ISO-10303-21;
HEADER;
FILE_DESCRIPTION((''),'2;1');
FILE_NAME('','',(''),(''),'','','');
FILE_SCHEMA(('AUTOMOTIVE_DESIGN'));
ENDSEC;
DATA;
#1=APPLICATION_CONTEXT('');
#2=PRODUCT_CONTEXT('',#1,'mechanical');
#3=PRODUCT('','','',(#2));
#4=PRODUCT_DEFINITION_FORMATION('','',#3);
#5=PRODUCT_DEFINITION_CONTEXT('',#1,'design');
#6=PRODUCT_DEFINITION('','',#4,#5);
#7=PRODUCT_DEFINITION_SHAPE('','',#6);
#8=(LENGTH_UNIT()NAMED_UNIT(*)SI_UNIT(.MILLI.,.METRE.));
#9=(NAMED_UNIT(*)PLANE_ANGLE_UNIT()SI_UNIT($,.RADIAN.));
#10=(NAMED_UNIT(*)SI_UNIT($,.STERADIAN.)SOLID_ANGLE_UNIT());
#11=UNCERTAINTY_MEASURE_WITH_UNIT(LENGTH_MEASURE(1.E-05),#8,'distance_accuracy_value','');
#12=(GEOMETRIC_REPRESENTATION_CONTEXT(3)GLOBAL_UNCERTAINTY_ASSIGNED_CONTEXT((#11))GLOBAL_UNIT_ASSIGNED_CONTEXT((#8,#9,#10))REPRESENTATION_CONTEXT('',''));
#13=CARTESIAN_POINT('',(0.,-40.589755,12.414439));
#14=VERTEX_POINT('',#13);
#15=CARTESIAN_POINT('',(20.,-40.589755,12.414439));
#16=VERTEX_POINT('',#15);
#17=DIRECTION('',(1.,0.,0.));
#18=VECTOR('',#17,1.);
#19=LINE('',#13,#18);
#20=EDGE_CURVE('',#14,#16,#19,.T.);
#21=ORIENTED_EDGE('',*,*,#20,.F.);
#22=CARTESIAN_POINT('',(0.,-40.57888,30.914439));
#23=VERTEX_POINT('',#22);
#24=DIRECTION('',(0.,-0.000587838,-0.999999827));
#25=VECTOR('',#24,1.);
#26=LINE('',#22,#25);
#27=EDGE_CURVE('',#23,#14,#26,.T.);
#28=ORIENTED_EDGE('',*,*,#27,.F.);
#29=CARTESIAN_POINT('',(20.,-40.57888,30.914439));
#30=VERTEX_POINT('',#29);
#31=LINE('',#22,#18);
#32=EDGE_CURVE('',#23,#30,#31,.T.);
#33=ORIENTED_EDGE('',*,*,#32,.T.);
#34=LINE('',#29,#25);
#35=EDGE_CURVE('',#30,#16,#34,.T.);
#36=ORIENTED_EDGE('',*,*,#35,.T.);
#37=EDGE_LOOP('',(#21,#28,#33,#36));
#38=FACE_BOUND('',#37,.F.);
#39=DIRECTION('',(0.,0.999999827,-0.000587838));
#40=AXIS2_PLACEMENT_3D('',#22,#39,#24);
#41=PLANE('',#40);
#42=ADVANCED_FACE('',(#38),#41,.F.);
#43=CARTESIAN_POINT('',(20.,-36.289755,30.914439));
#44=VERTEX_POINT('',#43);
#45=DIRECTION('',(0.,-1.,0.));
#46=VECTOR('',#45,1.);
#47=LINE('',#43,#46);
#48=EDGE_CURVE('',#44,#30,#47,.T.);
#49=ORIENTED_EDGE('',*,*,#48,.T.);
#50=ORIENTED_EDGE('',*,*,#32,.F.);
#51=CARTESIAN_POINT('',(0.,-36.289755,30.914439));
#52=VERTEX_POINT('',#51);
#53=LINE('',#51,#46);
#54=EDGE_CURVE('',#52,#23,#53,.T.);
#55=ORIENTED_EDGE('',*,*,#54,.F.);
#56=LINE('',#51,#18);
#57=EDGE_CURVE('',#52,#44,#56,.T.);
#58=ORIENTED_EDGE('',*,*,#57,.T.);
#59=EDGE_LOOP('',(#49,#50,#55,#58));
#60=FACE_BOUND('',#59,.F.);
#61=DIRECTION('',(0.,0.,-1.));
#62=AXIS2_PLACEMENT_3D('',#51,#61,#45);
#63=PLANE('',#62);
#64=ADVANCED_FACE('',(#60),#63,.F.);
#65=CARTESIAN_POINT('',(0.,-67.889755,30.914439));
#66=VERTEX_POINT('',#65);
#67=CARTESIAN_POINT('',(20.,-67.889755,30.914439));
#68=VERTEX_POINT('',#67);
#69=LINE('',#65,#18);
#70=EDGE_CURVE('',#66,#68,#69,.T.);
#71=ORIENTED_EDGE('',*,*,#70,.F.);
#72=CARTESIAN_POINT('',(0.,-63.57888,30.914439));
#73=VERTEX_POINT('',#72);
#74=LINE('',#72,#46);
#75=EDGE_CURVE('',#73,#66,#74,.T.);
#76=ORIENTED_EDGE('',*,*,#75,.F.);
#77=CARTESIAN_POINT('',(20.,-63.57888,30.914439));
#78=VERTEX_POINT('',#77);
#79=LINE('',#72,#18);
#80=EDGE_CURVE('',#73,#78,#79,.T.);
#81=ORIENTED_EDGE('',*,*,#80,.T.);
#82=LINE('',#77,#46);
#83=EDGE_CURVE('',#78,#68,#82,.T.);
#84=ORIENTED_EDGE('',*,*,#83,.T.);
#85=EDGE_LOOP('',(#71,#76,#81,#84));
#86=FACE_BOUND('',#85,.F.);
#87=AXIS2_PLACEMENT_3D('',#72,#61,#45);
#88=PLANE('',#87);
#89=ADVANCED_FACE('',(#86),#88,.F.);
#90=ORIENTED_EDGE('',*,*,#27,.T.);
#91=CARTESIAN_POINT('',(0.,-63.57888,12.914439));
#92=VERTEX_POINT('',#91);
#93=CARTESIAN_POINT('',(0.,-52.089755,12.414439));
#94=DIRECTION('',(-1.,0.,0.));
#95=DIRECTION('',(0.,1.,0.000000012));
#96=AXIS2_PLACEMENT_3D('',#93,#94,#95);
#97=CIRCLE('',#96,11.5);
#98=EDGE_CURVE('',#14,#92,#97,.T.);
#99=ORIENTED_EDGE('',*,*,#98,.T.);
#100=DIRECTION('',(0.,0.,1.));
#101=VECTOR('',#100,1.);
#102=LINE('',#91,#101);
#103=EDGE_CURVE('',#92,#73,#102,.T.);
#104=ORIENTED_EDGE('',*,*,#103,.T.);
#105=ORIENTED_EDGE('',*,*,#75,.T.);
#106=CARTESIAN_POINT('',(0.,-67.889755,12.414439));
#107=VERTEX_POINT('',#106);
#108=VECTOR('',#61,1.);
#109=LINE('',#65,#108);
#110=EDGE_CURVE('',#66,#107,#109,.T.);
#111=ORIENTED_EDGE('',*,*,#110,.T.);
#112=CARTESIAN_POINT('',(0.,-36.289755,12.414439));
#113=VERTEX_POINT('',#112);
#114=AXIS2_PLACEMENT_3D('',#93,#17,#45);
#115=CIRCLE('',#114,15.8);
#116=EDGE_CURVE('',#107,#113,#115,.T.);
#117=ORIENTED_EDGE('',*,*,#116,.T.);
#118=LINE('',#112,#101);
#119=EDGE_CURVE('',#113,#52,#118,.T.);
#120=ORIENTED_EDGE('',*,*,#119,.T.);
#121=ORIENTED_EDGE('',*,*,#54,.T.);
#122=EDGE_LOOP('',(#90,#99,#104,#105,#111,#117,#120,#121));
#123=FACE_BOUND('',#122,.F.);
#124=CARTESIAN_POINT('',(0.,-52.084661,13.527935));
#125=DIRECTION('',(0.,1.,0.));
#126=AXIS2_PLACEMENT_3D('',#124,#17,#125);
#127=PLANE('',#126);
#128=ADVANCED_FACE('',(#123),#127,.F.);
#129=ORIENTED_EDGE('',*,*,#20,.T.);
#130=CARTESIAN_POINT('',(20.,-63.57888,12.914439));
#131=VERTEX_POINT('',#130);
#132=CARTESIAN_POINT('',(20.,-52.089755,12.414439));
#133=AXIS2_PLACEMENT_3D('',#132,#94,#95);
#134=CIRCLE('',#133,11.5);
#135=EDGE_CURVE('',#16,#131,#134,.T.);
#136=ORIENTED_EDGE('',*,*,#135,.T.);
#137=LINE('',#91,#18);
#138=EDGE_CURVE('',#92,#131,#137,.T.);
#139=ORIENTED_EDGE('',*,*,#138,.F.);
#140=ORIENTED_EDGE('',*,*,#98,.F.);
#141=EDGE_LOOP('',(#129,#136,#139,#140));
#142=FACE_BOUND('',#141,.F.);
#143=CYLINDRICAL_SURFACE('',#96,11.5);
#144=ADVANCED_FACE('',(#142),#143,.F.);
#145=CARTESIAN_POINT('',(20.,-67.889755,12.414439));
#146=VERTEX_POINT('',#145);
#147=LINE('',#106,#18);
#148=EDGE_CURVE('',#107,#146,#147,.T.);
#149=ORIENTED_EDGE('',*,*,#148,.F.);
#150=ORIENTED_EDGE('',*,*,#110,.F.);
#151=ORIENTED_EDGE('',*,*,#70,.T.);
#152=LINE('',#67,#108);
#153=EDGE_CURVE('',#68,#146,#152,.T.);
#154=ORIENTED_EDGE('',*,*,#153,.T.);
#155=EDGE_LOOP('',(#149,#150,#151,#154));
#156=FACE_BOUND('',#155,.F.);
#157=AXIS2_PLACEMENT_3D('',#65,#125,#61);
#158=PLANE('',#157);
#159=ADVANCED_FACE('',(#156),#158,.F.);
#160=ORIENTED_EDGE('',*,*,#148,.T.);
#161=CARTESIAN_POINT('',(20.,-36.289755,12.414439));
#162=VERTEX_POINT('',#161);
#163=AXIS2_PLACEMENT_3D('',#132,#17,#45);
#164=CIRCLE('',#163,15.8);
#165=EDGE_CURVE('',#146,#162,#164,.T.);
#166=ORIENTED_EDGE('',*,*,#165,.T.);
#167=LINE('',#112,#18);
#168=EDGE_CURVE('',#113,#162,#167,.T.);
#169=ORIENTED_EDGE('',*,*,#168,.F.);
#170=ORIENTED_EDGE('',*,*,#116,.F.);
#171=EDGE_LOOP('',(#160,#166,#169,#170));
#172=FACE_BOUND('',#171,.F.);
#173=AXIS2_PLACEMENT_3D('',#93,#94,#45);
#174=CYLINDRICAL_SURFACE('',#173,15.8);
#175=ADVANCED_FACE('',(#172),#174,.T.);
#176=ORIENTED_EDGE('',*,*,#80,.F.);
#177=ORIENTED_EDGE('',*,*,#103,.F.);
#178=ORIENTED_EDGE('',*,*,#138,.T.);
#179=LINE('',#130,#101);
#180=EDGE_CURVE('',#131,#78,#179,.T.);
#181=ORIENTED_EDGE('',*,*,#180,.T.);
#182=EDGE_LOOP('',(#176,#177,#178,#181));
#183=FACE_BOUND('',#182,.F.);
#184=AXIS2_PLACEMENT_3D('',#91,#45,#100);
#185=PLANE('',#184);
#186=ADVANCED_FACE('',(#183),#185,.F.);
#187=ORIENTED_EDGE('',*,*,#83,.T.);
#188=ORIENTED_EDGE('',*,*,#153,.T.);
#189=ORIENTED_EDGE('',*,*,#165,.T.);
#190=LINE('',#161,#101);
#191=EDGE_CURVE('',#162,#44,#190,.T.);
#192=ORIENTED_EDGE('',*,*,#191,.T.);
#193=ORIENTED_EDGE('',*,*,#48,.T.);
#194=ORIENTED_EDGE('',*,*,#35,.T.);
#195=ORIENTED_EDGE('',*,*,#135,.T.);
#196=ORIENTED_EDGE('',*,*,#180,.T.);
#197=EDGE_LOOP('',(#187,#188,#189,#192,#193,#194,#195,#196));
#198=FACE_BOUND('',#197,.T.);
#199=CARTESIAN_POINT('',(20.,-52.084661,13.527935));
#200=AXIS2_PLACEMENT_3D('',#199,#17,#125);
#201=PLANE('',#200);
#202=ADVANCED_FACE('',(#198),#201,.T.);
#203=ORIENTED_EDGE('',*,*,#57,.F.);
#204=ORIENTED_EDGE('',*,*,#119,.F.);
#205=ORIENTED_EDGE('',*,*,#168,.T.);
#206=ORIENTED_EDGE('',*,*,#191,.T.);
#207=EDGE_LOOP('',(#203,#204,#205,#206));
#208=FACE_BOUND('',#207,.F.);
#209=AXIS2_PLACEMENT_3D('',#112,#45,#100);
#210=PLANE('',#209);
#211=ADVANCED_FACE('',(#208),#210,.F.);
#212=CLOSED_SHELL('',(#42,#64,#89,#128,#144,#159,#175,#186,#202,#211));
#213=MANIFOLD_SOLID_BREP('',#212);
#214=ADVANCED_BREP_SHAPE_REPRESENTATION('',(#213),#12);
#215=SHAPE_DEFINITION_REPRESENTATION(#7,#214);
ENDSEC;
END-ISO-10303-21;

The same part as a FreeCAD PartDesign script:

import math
import FreeCAD as App
import Part
import Sketcher

V = App.Vector
Q = App.Units.Quantity

doc = App.newDocument("Part")
body = doc.addObject("PartDesign::Body", "Body")

sketch1 = body.newObject("Sketcher::SketchObject", "Sketch")
sketch1.AttachmentSupport = (doc.getObject("YZ_Plane"), [""])
sketch1.MapMode = "FlatFace"
sketch1.addGeometry([
    Part.LineSegment(V(-67.9, 30.9, 0), V(-67.9, 12.4, 0)),
    Part.ArcOfCircle(Part.Circle(V(-52.1, 12.4, 0), V(0, 0, 1), 15.8), math.radians(180), math.radians(360)),
    Part.LineSegment(V(-36.3, 12.4, 0), V(-36.3, 30.9, 0)),
    Part.LineSegment(V(-36.3, 30.9, 0), V(-40.6, 30.9, 0)),
    Part.LineSegment(V(-40.6, 30.9, 0), V(-40.6, 12.4, 0)),
    Part.ArcOfCircle(Part.Circle(V(-52.1, 12.4, 0), V(0, 0, 1), 11.5), math.radians(178), math.radians(360)),
    Part.LineSegment(V(-63.6, 12.9, 0), V(-63.6, 30.9, 0)),
    Part.LineSegment(V(-63.6, 30.9, 0), V(-67.9, 30.9, 0)),
], False)
sketch1.addConstraint([
    Sketcher.Constraint("Tangent", 0, 2, 1, 1),
    Sketcher.Constraint("Tangent", 1, 2, 2, 1),
    Sketcher.Constraint("Coincident", 2, 2, 3, 1),
    Sketcher.Constraint("Coincident", 3, 2, 4, 1),
    Sketcher.Constraint("Coincident", 4, 2, 5, 2),
    Sketcher.Constraint("Coincident", 5, 1, 6, 1),
    Sketcher.Constraint("Coincident", 6, 2, 7, 1),
    Sketcher.Constraint("Coincident", 7, 2, 0, 1),
    Sketcher.Constraint("Vertical", 0),
    Sketcher.Constraint("Vertical", 2),
    Sketcher.Constraint("Horizontal", 3),
    Sketcher.Constraint("Vertical", 6),
    Sketcher.Constraint("Horizontal", 7),
    Sketcher.Constraint("Coincident", 5, 3, 1, 3),
    Sketcher.Constraint("Horizontal", 1, 2, 4, 2),
    Sketcher.Constraint("Horizontal", 3, 2, 6, 2),
    Sketcher.Constraint("Radius", 1, Q("15.8 mm")),
    Sketcher.Constraint("Radius", 5, Q("11.5 mm")),
    Sketcher.Constraint("DistanceY", 6, 1, 6, 2, Q("18 mm")),
    Sketcher.Constraint("DistanceY", 0, 2, 0, 1, Q("18.5 mm")),
    Sketcher.Constraint("DistanceX", 6, 2, 3, 2, Q("23 mm")),
    Sketcher.Constraint("DistanceY", -1, 1, 1, 3, Q("12.414439 mm")),
    Sketcher.Constraint("DistanceX", 3, 2, -1, 1, Q("40.57888 mm")),
])
pad1 = body.newObject("PartDesign::Pad", "Pad")
pad1.Profile = sketch1
pad1.Length = 20

doc.recompute()
